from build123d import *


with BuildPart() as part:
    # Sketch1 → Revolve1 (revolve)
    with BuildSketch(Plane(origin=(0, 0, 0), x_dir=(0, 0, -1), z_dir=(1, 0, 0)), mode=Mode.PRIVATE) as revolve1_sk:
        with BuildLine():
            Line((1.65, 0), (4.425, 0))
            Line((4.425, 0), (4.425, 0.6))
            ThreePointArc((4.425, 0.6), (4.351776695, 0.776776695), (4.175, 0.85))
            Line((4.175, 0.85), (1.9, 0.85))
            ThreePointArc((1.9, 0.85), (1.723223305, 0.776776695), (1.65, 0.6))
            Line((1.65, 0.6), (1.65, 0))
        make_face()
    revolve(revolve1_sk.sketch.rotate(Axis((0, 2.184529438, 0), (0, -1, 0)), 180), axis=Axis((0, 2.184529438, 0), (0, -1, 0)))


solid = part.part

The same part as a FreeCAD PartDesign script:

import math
import FreeCAD as App
import Part
import Sketcher
from FreeCAD import Vector
Q = App.Units.Quantity

doc = App.newDocument("Part")
body = doc.addObject("PartDesign::Body", "Body")

# Sketch on YZ plane
sketch1 = doc.addObject("Sketcher::SketchObject", "Sketch")
body.addObject(sketch1)
sketch1.AttachmentSupport = (doc.YZ_Plane, [""])
sketch1.MapMode = "FlatFace"
sketch1.addGeometry([
    Part.LineSegment(Vector(0, -1.65, 0), Vector(0, -4.42, 0)),  # 0
    Part.LineSegment(Vector(0, -4.42, 0), Vector(0.6, -4.42, 0)),  # 1
    Part.ArcOfCircle(Part.Circle(Vector(0.6, -4.17, 0), Vector(0, 0, 1), 0.25), math.radians(-90), math.radians(0)),  # 2
    Part.LineSegment(Vector(0.85, -4.17, 0), Vector(0.85, -1.9, 0)),  # 3
    Part.ArcOfCircle(Part.Circle(Vector(0.6, -1.9, 0), Vector(0, 0, 1), 0.25), math.radians(0), math.radians(90)),  # 4
    Part.LineSegment(Vector(0.6, -1.65, 0), Vector(0, -1.65, 0)),  # 5
], False)
sketch1.addConstraint([
    Sketcher.Constraint("Coincident", 0, 2, 1, 1),
    Sketcher.Constraint("Tangent", 1, 2, 2, 1),
    Sketcher.Constraint("Tangent", 2, 2, 3, 1),
    Sketcher.Constraint("Tangent", 3, 2, 4, 1),
    Sketcher.Constraint("Tangent", 4, 2, 5, 1),
    Sketcher.Constraint("Coincident", 5, 2, 0, 1),
    Sketcher.Constraint("Vertical", 0),
    Sketcher.Constraint("Horizontal", 1),
    Sketcher.Constraint("Vertical", 3),
    Sketcher.Constraint("Horizontal", 5),
    Sketcher.Constraint("Equal", 2, 4),
    Sketcher.Constraint("PointOnObject", 0, 2, -2),
    Sketcher.Constraint("Radius", 2, Q("0.25 mm")),
    Sketcher.Constraint("DistanceX", 1, 1, 1, 2, Q("0.6 mm")),
    Sketcher.Constraint("DistanceY", 4, 3, -1, 1, Q("1.9 mm")),
    Sketcher.Constraint("DistanceY", 0, 2, 0, 1, Q("2.775 mm")),
])
revolution = doc.addObject("PartDesign::Revolution", "Revolution")
body.addObject(revolution)
revolution.Profile = sketch1
revolution.ReferenceAxis = (sketch1, ["H_Axis"])
revolution.Angle = 360

doc.recompute()
